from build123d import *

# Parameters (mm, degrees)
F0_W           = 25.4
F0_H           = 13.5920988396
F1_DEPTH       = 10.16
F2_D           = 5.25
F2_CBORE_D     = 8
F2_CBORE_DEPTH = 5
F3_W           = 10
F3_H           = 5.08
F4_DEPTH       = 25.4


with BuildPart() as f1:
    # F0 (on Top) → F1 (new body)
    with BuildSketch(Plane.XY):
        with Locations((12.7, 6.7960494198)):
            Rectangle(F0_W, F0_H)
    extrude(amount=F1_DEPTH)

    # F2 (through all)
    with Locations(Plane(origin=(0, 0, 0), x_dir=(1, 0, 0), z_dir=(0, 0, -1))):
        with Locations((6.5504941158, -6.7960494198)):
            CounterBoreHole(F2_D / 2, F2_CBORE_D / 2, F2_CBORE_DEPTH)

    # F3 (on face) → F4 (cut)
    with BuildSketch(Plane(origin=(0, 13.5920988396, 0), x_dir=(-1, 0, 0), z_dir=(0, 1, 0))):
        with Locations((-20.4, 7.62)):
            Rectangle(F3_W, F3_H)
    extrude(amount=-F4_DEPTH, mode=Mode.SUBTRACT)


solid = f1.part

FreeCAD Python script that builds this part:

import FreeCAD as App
import Part
import Sketcher

V = App.Vector
Q = App.Units.Quantity


def add_polygon(sketch, points):
    """Adds a closed chain of lines whose ends are joined by coincident constraints."""
    first, n = sketch.GeometryCount, len(points)
    for a, b in zip(points, points[1:] + points[:1]):
        sketch.addGeometry(Part.LineSegment(App.Vector(*a, 0), App.Vector(*b, 0)), False)
    for i in range(n):
        sketch.addConstraint(Sketcher.Constraint("Coincident", first + i, 2, first + (i + 1) % n, 1))

doc = App.newDocument("Part")
body = doc.addObject("PartDesign::Body", "Body")

sketch1 = body.newObject("Sketcher::SketchObject", "Sketch")
sketch1.AttachmentSupport = (doc.getObject("XY_Plane"), [""])
sketch1.MapMode = "FlatFace"
add_polygon(sketch1, [(0, 14), (0, 0), (25, 0), (25, 14)])
sketch1.addConstraint(Sketcher.Constraint("Vertical", 0))
sketch1.addConstraint(Sketcher.Constraint("Horizontal", 1))
sketch1.addConstraint(Sketcher.Constraint("Vertical", 2))
sketch1.addConstraint(Sketcher.Constraint("Horizontal", 3))
sketch1.addConstraint(Sketcher.Constraint("Coincident", 0, 2, -1, 1))
sketch1.addConstraint(Sketcher.Constraint("DistanceX", 1, 1, 1, 2, Q("1 in")))
sketch1.addConstraint(Sketcher.Constraint("DistanceY", 0, 2, 0, 1, Q("13.592099 mm")))
pad1 = body.newObject("PartDesign::Pad", "Pad")
pad1.Profile = sketch1
pad1.Length = Q("0.4 in")

sketch2 = body.newObject("Sketcher::SketchObject", "Sketch001")
sketch2.AttachmentSupport = (doc.getObject("XY_Plane"), [""])
sketch2.MapMode = "FlatFace"
sketch2.addGeometry(Part.Circle(V(6.6, 6.8, 0), V(0, 0, 1), 2.6), False)
sketch2.addConstraint(Sketcher.Constraint("Diameter", 0, Q("5.25 mm")))
sketch2.addConstraint(Sketcher.Constraint("DistanceY", -1, 1, 0, 3, Q("6.796049 mm")))
sketch2.addConstraint(Sketcher.Constraint("DistanceX", -1, 1, 0, 3, Q("6.550494 mm")))
doc.recompute()
hole = body.newObject("PartDesign::Hole", "Hole")
hole.Profile = sketch2
hole.ThreadType = "None"
hole.Diameter = 5.25
hole.DepthType = "ThroughAll"
hole.HoleCutType = "Counterbore"
hole.HoleCutDiameter = 8
hole.HoleCutDepth = 5
hole.Reversed = True

sketch3 = body.newObject("Sketcher::SketchObject", "Sketch002")
sketch3.AttachmentSupport = (doc.getObject("XZ_Plane"), [""])
sketch3.MapMode = "FlatFace"
sketch3.AttachmentOffset = App.Placement(V(0, 0, -13.592099), App.Rotation())
add_polygon(sketch3, [(25, 10), (25, 5), (15, 5), (15, 10)])
sketch3.addConstraint(Sketcher.Constraint("Vertical", 0))
sketch3.addConstraint(Sketcher.Constraint("Horizontal", 1))
sketch3.addConstraint(Sketcher.Constraint("Vertical", 2))
sketch3.addConstraint(Sketcher.Constraint("Horizontal", 3))
sketch3.addConstraint(Sketcher.Constraint("DistanceY", 0, 2, 0, 1, Q("0.2 in")))
sketch3.addConstraint(Sketcher.Constraint("DistanceX", -1, 1, 0, 2, Q("1 in")))
sketch3.addConstraint(Sketcher.Constraint("DistanceY", -1, 1, 0, 2, Q("0.2 in")))
sketch3.addConstraint(Sketcher.Constraint("DistanceX", 1, 2, 1, 1, Q("10 mm")))
pocket1 = body.newObject("PartDesign::Pocket", "Pocket")
pocket1.Profile = sketch3
pocket1.Length = Q("1 in")
pocket1.Reversed = True

doc.recompute()
